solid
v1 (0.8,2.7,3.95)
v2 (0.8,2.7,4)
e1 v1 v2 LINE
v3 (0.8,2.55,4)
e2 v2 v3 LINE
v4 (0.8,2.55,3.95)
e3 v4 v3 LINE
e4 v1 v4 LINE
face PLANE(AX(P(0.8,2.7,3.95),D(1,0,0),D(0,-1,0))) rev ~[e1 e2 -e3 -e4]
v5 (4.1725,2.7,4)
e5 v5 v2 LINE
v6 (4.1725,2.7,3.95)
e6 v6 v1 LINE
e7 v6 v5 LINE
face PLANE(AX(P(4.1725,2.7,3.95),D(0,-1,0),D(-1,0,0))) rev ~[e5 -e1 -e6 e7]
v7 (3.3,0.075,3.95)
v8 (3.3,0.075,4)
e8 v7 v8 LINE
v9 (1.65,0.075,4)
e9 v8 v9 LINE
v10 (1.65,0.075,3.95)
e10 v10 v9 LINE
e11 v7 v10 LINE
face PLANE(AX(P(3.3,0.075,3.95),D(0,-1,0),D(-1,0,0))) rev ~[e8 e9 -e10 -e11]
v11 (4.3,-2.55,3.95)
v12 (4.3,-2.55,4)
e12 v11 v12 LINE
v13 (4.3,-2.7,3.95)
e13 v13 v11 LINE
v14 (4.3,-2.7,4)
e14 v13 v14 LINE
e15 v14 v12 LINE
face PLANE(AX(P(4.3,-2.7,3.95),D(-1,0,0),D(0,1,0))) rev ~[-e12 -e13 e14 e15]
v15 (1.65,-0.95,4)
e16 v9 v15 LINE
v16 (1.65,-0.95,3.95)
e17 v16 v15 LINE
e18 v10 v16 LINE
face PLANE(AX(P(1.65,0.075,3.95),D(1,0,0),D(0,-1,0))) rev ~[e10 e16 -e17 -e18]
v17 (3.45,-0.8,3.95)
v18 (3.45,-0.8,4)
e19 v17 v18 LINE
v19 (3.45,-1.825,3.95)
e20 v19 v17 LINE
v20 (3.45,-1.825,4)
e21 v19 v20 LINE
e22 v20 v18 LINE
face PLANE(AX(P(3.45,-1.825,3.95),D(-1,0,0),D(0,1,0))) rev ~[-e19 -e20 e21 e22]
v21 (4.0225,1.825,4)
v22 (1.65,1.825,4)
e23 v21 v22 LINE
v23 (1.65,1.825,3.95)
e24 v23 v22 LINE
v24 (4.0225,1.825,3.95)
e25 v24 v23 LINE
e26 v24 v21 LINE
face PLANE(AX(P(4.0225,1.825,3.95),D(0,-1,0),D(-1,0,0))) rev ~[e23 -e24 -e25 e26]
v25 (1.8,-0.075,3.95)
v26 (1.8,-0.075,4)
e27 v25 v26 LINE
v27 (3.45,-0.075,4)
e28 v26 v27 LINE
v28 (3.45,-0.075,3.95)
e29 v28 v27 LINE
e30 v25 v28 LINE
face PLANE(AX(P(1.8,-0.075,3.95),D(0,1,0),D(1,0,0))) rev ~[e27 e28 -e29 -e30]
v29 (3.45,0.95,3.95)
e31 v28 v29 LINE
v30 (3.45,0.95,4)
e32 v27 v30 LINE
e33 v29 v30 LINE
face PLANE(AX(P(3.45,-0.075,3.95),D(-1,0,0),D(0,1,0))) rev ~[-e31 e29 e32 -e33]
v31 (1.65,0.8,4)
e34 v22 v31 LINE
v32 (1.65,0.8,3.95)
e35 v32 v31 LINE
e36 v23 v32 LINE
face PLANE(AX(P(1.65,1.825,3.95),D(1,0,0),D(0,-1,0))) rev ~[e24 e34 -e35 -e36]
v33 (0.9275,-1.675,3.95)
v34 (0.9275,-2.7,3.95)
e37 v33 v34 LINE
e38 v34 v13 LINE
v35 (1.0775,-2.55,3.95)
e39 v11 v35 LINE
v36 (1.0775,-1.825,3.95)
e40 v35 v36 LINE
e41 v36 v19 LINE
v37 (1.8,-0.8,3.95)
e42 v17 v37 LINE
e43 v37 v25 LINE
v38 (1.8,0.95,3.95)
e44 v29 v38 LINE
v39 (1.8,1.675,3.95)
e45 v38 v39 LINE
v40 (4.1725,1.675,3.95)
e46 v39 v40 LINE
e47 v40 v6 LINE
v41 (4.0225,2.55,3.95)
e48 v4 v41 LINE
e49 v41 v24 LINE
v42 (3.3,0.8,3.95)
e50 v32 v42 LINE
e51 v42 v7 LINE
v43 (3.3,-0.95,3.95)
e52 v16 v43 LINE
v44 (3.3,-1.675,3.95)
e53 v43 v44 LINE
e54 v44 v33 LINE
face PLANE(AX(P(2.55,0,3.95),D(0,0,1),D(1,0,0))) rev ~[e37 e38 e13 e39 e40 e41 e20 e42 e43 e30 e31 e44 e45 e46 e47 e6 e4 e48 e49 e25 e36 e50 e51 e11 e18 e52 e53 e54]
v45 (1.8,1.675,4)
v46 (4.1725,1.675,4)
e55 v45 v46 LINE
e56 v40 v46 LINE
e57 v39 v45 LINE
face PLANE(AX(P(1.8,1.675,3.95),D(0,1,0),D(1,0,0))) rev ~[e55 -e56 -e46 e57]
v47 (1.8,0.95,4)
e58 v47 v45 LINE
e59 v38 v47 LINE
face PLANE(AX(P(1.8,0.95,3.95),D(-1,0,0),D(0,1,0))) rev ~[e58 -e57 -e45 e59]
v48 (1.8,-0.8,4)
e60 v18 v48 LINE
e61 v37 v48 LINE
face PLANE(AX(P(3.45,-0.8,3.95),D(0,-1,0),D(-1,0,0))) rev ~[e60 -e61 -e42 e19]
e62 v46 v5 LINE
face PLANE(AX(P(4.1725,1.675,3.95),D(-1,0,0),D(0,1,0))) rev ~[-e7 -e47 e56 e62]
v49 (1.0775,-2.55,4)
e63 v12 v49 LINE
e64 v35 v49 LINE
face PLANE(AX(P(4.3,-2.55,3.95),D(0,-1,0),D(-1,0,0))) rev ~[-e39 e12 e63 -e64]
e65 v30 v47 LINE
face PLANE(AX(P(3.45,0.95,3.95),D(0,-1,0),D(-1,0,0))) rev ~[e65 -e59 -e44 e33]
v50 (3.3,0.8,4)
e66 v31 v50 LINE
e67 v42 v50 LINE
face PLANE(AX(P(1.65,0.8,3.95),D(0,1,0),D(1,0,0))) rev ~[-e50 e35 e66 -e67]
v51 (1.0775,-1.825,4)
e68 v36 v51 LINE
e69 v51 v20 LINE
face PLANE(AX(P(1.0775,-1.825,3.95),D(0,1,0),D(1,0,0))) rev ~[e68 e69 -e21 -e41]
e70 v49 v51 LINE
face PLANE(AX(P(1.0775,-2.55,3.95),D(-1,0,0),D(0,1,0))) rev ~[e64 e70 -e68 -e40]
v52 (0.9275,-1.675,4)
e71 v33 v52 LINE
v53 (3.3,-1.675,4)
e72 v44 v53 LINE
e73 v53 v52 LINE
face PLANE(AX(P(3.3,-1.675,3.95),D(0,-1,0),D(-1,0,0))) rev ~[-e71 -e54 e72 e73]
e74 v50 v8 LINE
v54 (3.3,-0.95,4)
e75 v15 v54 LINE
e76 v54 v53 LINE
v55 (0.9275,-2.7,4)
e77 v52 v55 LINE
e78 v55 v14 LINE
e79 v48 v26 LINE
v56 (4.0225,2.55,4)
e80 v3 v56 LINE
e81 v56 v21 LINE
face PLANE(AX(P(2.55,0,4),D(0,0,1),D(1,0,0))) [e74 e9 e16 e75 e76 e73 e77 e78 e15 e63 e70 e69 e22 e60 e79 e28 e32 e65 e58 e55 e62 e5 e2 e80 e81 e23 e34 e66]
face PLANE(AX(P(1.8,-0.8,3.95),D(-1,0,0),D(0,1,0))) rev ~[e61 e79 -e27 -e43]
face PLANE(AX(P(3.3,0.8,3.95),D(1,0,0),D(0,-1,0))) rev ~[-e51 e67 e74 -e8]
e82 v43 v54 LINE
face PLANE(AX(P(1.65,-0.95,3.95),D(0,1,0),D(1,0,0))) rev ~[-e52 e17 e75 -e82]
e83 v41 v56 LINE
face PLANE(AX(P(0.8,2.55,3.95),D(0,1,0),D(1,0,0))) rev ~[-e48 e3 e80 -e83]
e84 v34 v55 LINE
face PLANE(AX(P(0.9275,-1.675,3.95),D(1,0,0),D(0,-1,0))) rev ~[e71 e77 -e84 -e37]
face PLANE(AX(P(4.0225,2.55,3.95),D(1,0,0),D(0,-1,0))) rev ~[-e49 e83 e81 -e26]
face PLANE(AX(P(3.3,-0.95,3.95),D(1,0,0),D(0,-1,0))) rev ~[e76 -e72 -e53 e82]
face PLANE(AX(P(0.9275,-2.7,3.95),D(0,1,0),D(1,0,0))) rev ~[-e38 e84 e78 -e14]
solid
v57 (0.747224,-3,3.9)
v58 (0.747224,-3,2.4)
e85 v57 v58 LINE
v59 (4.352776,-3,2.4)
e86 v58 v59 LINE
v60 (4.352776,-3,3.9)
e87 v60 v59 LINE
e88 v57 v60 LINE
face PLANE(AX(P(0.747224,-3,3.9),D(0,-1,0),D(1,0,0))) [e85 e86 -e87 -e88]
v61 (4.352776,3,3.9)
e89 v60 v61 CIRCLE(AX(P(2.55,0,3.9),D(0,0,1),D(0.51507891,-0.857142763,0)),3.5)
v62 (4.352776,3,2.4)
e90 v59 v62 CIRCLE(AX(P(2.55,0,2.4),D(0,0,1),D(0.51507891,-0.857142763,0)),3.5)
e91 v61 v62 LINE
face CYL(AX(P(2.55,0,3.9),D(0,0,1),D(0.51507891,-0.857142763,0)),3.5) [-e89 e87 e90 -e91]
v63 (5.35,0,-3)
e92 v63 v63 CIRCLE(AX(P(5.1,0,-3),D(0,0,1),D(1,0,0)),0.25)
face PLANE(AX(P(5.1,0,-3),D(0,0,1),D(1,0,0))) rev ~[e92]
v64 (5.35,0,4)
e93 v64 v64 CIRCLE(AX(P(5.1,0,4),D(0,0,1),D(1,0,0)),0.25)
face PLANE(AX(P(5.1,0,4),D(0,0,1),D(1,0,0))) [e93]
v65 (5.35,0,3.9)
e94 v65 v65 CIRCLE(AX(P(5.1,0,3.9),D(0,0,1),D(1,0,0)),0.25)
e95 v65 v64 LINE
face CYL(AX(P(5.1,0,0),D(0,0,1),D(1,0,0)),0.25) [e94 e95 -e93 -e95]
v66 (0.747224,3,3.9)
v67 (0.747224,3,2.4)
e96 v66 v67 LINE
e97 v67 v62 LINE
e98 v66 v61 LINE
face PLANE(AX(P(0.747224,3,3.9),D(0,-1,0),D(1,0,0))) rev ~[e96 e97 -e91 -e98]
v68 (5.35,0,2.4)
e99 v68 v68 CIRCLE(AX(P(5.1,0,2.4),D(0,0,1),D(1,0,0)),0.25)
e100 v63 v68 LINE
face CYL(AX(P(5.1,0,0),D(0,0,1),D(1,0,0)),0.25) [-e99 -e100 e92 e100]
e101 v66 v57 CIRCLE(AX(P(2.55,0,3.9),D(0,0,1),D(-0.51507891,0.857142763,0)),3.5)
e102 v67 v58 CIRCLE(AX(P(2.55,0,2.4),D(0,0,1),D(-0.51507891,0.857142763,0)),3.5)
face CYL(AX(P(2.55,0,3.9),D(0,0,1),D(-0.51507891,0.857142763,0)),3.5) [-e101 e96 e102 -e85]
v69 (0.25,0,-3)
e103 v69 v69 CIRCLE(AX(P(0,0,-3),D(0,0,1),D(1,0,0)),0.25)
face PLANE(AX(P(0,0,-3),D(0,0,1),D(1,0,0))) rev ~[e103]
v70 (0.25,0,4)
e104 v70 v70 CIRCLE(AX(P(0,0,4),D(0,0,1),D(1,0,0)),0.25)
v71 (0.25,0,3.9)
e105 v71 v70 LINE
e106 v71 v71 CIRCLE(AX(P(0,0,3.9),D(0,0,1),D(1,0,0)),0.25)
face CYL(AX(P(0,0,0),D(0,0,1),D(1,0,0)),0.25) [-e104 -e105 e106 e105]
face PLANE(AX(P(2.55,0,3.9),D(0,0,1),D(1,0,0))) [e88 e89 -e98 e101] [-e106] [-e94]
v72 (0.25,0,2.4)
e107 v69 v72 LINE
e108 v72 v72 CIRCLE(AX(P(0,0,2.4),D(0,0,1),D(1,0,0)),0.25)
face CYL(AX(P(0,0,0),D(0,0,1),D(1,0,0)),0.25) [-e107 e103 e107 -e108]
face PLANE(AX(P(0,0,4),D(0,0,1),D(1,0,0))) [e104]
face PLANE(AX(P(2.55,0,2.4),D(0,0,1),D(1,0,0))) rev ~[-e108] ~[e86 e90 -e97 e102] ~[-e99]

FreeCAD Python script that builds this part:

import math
import FreeCAD as App
import Part
import Sketcher
from FreeCAD import Vector

doc = App.newDocument("Part")
body = doc.addObject("PartDesign::Body", "Body")

sketch1 = doc.addObject("Sketcher::SketchObject", "Sketch")
body.addObject(sketch1)
sketch1.AttachmentSupport = (doc.XY_Plane, [""])
sketch1.MapMode = "FlatFace"
sketch1.AttachmentOffset = App.Placement(Vector(0, 0, 3.9), App.Rotation())
sketch1.addGeometry([
    Part.ArcOfCircle(Part.Circle(Vector(2.55, 0, 0), Vector(0, 0, 1), 3.5), math.radians(121.00273), math.radians(238.99727)),
    Part.LineSegment(Vector(0.747224, -3, 0), Vector(4.352776, -3, 0)),
    Part.ArcOfCircle(Part.Circle(Vector(2.55, 0, 0), Vector(0, 0, 1), 3.5), math.radians(-58.99727), math.radians(58.99727)),
    Part.LineSegment(Vector(4.352776, 3, 0), Vector(0.747224, 3, 0)),
], False)
sketch1.addConstraint([
    Sketcher.Constraint("Coincident", 0, 2, 1, 1),
    Sketcher.Constraint("Coincident", 1, 2, 2, 1),
    Sketcher.Constraint("Coincident", 2, 2, 3, 1),
    Sketcher.Constraint("Coincident", 3, 2, 0, 1),
    Sketcher.Constraint("Horizontal", 1),
    Sketcher.Constraint("Horizontal", 3),
    Sketcher.Constraint("Coincident", 2, 3, 0, 3),
    Sketcher.Constraint("Equal", 0, 2),
    Sketcher.Constraint("Symmetric", 1, 2, 2, 2, -1),
    Sketcher.Constraint("Radius", 0, 3.5),
    Sketcher.Constraint("DistanceY", 0, 2, -1, 1, 3.0),
    Sketcher.Constraint("DistanceX", -1, 1, 0, 3, 2.55),
])
pad1 = doc.addObject("PartDesign::Pad", "Pad")
body.addObject(pad1)
pad1.Profile = sketch1
pad1.Length = 1.5
pad1.Reversed = True
body2 = doc.addObject("PartDesign::Body", "Body001")
body2.AllowCompound = True

sketch2 = doc.addObject("Sketcher::SketchObject", "Sketch001")
body2.addObject(sketch2)
sketch2.AttachmentSupport = (doc.getObject("XY_Plane001"), [""])
sketch2.MapMode = "FlatFace"
sketch2.addGeometry([
    Part.Circle(Vector(0, 0, 0), Vector(0, 0, 1), 0.25),
    Part.Circle(Vector(5.1, 0, 0), Vector(0, 0, 1), 0.25),
], False)
sketch2.addConstraint([
    Sketcher.Constraint("Coincident", 0, 3, -1, 1),
    Sketcher.Constraint("Equal", 0, 1),
    Sketcher.Constraint("PointOnObject", 1, 3, -1),
    Sketcher.Constraint("Diameter", 0, 0.5),
    Sketcher.Constraint("DistanceX", -1, 1, 1, 3, 5.1),
])
pad2 = doc.addObject("PartDesign::Pad", "Pad001")
body2.addObject(pad2)
pad2.Profile = sketch2
pad2.Type = "TwoLengths"
pad2.Length = 4
pad2.Length2 = 3
body3 = doc.addObject("PartDesign::Body", "Body002")
body3.AllowCompound = True

sketch3 = doc.addObject("Sketcher::SketchObject", "Sketch002")
body3.addObject(sketch3)
sketch3.AttachmentSupport = (doc.getObject("XY_Plane002"), [""])
sketch3.MapMode = "FlatFace"
sketch3.AttachmentOffset = App.Placement(Vector(0, 0, 3.95), App.Rotation())
sketch3.addGeometry([
    Part.LineSegment(Vector(0.8, 2.55, 0), Vector(4.0225, 2.55, 0)),
    Part.LineSegment(Vector(4.0225, 2.55, 0), Vector(4.0225, 1.825, 0)),
    Part.LineSegment(Vector(4.0225, 1.825, 0), Vector(1.65, 1.825, 0)),
    Part.LineSegment(Vector(1.65, 1.825, 0), Vector(1.65, 0.8, 0)),
    Part.LineSegment(Vector(1.65, 0.8, 0), Vector(3.3, 0.8, 0)),
    Part.LineSegment(Vector(3.3, 0.8, 0), Vector(3.3, 0.075, 0)),
    Part.LineSegment(Vector(3.3, 0.075, 0), Vector(1.65, 0.075, 0)),
    Part.LineSegment(Vector(1.65, 0.075, 0), Vector(1.65, -0.95, 0)),
    Part.LineSegment(Vector(1.65, -0.95, 0), Vector(3.3, -0.95, 0)),
    Part.LineSegment(Vector(3.3, -0.95, 0), Vector(3.3, -1.675, 0)),
    Part.LineSegment(Vector(3.3, -1.675, 0), Vector(0.9275, -1.675, 0)),
    Part.LineSegment(Vector(0.9275, -1.675, 0), Vector(0.9275, -2.7, 0)),
    Part.LineSegment(Vector(0.9275, -2.7, 0), Vector(4.3, -2.7, 0)),
    Part.LineSegment(Vector(4.3, -2.7, 0), Vector(4.3, -2.55, 0)),
    Part.LineSegment(Vector(4.3, -2.55, 0), Vector(1.0775, -2.55, 0)),
    Part.LineSegment(Vector(1.0775, -2.55, 0), Vector(1.0775, -1.825, 0)),
    Part.LineSegment(Vector(1.0775, -1.825, 0), Vector(3.45, -1.825, 0)),
    Part.LineSegment(Vector(3.45, -1.825, 0), Vector(3.45, -0.8, 0)),
    Part.LineSegment(Vector(3.45, -0.8, 0), Vector(1.8, -0.8, 0)),
    Part.LineSegment(Vector(1.8, -0.8, 0), Vector(1.8, -0.075, 0)),
    Part.LineSegment(Vector(1.8, -0.075, 0), Vector(3.45, -0.075, 0)),
    Part.LineSegment(Vector(3.45, -0.075, 0), Vector(3.45, 0.95, 0)),
    Part.LineSegment(Vector(3.45, 0.95, 0), Vector(1.8, 0.95, 0)),
    Part.LineSegment(Vector(1.8, 0.95, 0), Vector(1.8, 1.675, 0)),
    Part.LineSegment(Vector(1.8, 1.675, 0), Vector(4.1725, 1.675, 0)),
    Part.LineSegment(Vector(4.1725, 1.675, 0), Vector(4.1725, 2.7, 0)),
    Part.LineSegment(Vector(4.1725, 2.7, 0), Vector(0.8, 2.7, 0)),
    Part.LineSegment(Vector(0.8, 2.7, 0), Vector(0.8, 2.55, 0)),
], False)
sketch3.addConstraint([
    Sketcher.Constraint("Coincident", 0, 2, 1, 1),
    Sketcher.Constraint("Coincident", 1, 2, 2, 1),
    Sketcher.Constraint("Coincident", 2, 2, 3, 1),
    Sketcher.Constraint("Coincident", 3, 2, 4, 1),
    Sketcher.Constraint("Coincident", 4, 2, 5, 1),
    Sketcher.Constraint("Coincident", 5, 2, 6, 1),
    Sketcher.Constraint("Coincident", 6, 2, 7, 1),
    Sketcher.Constraint("Coincident", 7, 2, 8, 1),
    Sketcher.Constraint("Coincident", 8, 2, 9, 1),
    Sketcher.Constraint("Coincident", 9, 2, 10, 1),
    Sketcher.Constraint("Coincident", 10, 2, 11, 1),
    Sketcher.Constraint("Coincident", 11, 2, 12, 1),
    Sketcher.Constraint("Coincident", 12, 2, 13, 1),
    Sketcher.Constraint("Coincident", 13, 2, 14, 1),
    Sketcher.Constraint("Coincident", 14, 2, 15, 1),
    Sketcher.Constraint("Coincident", 15, 2, 16, 1),
    Sketcher.Constraint("Coincident", 16, 2, 17, 1),
    Sketcher.Constraint("Coincident", 17, 2, 18, 1),
    Sketcher.Constraint("Coincident", 18, 2, 19, 1),
    Sketcher.Constraint("Coincident", 19, 2, 20, 1),
    Sketcher.Constraint("Coincident", 20, 2, 21, 1),
    Sketcher.Constraint("Coincident", 21, 2, 22, 1),
    Sketcher.Constraint("Coincident", 22, 2, 23, 1),
    Sketcher.Constraint("Coincident", 23, 2, 24, 1),
    Sketcher.Constraint("Coincident", 24, 2, 25, 1),
    Sketcher.Constraint("Coincident", 25, 2, 26, 1),
    Sketcher.Constraint("Coincident", 26, 2, 27, 1),
    Sketcher.Constraint("Coincident", 27, 2, 0, 1),
    Sketcher.Constraint("Horizontal", 0),
    Sketcher.Constraint("Vertical", 1),
    Sketcher.Constraint("Horizontal", 2),
    Sketcher.Constraint("Vertical", 3),
    Sketcher.Constraint("Horizontal", 4),
    Sketcher.Constraint("Vertical", 5),
    Sketcher.Constraint("Horizontal", 6),
    Sketcher.Constraint("Vertical", 7),
    Sketcher.Constraint("Horizontal", 8),
    Sketcher.Constraint("Vertical", 9),
    Sketcher.Constraint("Horizontal", 10),
    Sketcher.Constraint("Vertical", 11),
    Sketcher.Constraint("Horizontal", 12),
    Sketcher.Constraint("Vertical", 13),
    Sketcher.Constraint("Horizontal", 14),
    Sketcher.Constraint("Vertical", 15),
    Sketcher.Constraint("Horizontal", 16),
    Sketcher.Constraint("Vertical", 17),
    Sketcher.Constraint("Horizontal", 18),
    Sketcher.Constraint("Vertical", 19),
    Sketcher.Constraint("Horizontal", 20),
    Sketcher.Constraint("Vertical", 21),
    Sketcher.Constraint("Horizontal", 22),
    Sketcher.Constraint("Vertical", 23),
    Sketcher.Constraint("Horizontal", 24),
    Sketcher.Constraint("Vertical", 25),
    Sketcher.Constraint("Horizontal", 26),
    Sketcher.Constraint("Vertical", 27),
    Sketcher.Constraint("Vertical", 3, 2, 6, 2),
    Sketcher.Constraint("Vertical", 5, 2, 8, 2),
    Sketcher.Constraint("Vertical", 17, 2, 20, 2),
    Sketcher.Constraint("Vertical", 19, 2, 22, 2),
    Sketcher.Constraint("Equal", 2, 10),
    Sketcher.Constraint("Equal", 0, 14),
    Sketcher.Constraint("Equal", 10, 16),
    Sketcher.Constraint("Equal", 8, 18),
    Sketcher.Constraint("Equal", 16, 24),
    Sketcher.Constraint("Equal", 1, 5),
    Sketcher.Constraint("Equal", 3, 7),
    Sketcher.Constraint("Equal", 5, 9),
    Sketcher.Constraint("Equal", 7, 11),
    Sketcher.Constraint("Equal", 9, 15),
    Sketcher.Constraint("Equal", 11, 17),
    Sketcher.Constraint("Equal", 15, 19),
    Sketcher.Constraint("Equal", 17, 21),
    Sketcher.Constraint("Equal", 19, 23),
    Sketcher.Constraint("Equal", 21, 25),
    Sketcher.Constraint("DistanceX", 9, 2, 12, 2, 1.0),
    Sketcher.Constraint("DistanceX", 4, 1, 4, 2, 1.65),
    Sketcher.Constraint("DistanceY", 13, 1, 13, 2, 0.15),
    Sketcher.Constraint("DistanceY", -1, 1, 3, 2, 0.8),
    Sketcher.Constraint("DistanceX", -1, 1, 4, 2, 3.3),
    Sketcher.Constraint("DistanceY", 11, 2, -1, 1, 2.7),
    Sketcher.Constraint("DistanceX", -1, 1, 18, 2, 1.8),
    Sketcher.Constraint("DistanceY", 15, 2, 6, 2, 1.9),
    Sketcher.Constraint("DistanceX", 0, 1, 0, 2, 3.2225),
])
pad3 = doc.addObject("PartDesign::Pad", "Pad002")
body3.addObject(pad3)
pad3.Profile = sketch3
pad3.Length = 0.05
doc.recompute()

boolean = doc.addObject("PartDesign::Boolean", "Boolean")
body3.addObject(boolean)
boolean.Type = "Fuse"
boolean.addObjects([body])
doc.recompute()

boolean2 = doc.addObject("PartDesign::Boolean", "Boolean001")
body3.addObject(boolean2)
boolean2.Type = "Fuse"
boolean2.addObjects([body2])

doc.recompute()
